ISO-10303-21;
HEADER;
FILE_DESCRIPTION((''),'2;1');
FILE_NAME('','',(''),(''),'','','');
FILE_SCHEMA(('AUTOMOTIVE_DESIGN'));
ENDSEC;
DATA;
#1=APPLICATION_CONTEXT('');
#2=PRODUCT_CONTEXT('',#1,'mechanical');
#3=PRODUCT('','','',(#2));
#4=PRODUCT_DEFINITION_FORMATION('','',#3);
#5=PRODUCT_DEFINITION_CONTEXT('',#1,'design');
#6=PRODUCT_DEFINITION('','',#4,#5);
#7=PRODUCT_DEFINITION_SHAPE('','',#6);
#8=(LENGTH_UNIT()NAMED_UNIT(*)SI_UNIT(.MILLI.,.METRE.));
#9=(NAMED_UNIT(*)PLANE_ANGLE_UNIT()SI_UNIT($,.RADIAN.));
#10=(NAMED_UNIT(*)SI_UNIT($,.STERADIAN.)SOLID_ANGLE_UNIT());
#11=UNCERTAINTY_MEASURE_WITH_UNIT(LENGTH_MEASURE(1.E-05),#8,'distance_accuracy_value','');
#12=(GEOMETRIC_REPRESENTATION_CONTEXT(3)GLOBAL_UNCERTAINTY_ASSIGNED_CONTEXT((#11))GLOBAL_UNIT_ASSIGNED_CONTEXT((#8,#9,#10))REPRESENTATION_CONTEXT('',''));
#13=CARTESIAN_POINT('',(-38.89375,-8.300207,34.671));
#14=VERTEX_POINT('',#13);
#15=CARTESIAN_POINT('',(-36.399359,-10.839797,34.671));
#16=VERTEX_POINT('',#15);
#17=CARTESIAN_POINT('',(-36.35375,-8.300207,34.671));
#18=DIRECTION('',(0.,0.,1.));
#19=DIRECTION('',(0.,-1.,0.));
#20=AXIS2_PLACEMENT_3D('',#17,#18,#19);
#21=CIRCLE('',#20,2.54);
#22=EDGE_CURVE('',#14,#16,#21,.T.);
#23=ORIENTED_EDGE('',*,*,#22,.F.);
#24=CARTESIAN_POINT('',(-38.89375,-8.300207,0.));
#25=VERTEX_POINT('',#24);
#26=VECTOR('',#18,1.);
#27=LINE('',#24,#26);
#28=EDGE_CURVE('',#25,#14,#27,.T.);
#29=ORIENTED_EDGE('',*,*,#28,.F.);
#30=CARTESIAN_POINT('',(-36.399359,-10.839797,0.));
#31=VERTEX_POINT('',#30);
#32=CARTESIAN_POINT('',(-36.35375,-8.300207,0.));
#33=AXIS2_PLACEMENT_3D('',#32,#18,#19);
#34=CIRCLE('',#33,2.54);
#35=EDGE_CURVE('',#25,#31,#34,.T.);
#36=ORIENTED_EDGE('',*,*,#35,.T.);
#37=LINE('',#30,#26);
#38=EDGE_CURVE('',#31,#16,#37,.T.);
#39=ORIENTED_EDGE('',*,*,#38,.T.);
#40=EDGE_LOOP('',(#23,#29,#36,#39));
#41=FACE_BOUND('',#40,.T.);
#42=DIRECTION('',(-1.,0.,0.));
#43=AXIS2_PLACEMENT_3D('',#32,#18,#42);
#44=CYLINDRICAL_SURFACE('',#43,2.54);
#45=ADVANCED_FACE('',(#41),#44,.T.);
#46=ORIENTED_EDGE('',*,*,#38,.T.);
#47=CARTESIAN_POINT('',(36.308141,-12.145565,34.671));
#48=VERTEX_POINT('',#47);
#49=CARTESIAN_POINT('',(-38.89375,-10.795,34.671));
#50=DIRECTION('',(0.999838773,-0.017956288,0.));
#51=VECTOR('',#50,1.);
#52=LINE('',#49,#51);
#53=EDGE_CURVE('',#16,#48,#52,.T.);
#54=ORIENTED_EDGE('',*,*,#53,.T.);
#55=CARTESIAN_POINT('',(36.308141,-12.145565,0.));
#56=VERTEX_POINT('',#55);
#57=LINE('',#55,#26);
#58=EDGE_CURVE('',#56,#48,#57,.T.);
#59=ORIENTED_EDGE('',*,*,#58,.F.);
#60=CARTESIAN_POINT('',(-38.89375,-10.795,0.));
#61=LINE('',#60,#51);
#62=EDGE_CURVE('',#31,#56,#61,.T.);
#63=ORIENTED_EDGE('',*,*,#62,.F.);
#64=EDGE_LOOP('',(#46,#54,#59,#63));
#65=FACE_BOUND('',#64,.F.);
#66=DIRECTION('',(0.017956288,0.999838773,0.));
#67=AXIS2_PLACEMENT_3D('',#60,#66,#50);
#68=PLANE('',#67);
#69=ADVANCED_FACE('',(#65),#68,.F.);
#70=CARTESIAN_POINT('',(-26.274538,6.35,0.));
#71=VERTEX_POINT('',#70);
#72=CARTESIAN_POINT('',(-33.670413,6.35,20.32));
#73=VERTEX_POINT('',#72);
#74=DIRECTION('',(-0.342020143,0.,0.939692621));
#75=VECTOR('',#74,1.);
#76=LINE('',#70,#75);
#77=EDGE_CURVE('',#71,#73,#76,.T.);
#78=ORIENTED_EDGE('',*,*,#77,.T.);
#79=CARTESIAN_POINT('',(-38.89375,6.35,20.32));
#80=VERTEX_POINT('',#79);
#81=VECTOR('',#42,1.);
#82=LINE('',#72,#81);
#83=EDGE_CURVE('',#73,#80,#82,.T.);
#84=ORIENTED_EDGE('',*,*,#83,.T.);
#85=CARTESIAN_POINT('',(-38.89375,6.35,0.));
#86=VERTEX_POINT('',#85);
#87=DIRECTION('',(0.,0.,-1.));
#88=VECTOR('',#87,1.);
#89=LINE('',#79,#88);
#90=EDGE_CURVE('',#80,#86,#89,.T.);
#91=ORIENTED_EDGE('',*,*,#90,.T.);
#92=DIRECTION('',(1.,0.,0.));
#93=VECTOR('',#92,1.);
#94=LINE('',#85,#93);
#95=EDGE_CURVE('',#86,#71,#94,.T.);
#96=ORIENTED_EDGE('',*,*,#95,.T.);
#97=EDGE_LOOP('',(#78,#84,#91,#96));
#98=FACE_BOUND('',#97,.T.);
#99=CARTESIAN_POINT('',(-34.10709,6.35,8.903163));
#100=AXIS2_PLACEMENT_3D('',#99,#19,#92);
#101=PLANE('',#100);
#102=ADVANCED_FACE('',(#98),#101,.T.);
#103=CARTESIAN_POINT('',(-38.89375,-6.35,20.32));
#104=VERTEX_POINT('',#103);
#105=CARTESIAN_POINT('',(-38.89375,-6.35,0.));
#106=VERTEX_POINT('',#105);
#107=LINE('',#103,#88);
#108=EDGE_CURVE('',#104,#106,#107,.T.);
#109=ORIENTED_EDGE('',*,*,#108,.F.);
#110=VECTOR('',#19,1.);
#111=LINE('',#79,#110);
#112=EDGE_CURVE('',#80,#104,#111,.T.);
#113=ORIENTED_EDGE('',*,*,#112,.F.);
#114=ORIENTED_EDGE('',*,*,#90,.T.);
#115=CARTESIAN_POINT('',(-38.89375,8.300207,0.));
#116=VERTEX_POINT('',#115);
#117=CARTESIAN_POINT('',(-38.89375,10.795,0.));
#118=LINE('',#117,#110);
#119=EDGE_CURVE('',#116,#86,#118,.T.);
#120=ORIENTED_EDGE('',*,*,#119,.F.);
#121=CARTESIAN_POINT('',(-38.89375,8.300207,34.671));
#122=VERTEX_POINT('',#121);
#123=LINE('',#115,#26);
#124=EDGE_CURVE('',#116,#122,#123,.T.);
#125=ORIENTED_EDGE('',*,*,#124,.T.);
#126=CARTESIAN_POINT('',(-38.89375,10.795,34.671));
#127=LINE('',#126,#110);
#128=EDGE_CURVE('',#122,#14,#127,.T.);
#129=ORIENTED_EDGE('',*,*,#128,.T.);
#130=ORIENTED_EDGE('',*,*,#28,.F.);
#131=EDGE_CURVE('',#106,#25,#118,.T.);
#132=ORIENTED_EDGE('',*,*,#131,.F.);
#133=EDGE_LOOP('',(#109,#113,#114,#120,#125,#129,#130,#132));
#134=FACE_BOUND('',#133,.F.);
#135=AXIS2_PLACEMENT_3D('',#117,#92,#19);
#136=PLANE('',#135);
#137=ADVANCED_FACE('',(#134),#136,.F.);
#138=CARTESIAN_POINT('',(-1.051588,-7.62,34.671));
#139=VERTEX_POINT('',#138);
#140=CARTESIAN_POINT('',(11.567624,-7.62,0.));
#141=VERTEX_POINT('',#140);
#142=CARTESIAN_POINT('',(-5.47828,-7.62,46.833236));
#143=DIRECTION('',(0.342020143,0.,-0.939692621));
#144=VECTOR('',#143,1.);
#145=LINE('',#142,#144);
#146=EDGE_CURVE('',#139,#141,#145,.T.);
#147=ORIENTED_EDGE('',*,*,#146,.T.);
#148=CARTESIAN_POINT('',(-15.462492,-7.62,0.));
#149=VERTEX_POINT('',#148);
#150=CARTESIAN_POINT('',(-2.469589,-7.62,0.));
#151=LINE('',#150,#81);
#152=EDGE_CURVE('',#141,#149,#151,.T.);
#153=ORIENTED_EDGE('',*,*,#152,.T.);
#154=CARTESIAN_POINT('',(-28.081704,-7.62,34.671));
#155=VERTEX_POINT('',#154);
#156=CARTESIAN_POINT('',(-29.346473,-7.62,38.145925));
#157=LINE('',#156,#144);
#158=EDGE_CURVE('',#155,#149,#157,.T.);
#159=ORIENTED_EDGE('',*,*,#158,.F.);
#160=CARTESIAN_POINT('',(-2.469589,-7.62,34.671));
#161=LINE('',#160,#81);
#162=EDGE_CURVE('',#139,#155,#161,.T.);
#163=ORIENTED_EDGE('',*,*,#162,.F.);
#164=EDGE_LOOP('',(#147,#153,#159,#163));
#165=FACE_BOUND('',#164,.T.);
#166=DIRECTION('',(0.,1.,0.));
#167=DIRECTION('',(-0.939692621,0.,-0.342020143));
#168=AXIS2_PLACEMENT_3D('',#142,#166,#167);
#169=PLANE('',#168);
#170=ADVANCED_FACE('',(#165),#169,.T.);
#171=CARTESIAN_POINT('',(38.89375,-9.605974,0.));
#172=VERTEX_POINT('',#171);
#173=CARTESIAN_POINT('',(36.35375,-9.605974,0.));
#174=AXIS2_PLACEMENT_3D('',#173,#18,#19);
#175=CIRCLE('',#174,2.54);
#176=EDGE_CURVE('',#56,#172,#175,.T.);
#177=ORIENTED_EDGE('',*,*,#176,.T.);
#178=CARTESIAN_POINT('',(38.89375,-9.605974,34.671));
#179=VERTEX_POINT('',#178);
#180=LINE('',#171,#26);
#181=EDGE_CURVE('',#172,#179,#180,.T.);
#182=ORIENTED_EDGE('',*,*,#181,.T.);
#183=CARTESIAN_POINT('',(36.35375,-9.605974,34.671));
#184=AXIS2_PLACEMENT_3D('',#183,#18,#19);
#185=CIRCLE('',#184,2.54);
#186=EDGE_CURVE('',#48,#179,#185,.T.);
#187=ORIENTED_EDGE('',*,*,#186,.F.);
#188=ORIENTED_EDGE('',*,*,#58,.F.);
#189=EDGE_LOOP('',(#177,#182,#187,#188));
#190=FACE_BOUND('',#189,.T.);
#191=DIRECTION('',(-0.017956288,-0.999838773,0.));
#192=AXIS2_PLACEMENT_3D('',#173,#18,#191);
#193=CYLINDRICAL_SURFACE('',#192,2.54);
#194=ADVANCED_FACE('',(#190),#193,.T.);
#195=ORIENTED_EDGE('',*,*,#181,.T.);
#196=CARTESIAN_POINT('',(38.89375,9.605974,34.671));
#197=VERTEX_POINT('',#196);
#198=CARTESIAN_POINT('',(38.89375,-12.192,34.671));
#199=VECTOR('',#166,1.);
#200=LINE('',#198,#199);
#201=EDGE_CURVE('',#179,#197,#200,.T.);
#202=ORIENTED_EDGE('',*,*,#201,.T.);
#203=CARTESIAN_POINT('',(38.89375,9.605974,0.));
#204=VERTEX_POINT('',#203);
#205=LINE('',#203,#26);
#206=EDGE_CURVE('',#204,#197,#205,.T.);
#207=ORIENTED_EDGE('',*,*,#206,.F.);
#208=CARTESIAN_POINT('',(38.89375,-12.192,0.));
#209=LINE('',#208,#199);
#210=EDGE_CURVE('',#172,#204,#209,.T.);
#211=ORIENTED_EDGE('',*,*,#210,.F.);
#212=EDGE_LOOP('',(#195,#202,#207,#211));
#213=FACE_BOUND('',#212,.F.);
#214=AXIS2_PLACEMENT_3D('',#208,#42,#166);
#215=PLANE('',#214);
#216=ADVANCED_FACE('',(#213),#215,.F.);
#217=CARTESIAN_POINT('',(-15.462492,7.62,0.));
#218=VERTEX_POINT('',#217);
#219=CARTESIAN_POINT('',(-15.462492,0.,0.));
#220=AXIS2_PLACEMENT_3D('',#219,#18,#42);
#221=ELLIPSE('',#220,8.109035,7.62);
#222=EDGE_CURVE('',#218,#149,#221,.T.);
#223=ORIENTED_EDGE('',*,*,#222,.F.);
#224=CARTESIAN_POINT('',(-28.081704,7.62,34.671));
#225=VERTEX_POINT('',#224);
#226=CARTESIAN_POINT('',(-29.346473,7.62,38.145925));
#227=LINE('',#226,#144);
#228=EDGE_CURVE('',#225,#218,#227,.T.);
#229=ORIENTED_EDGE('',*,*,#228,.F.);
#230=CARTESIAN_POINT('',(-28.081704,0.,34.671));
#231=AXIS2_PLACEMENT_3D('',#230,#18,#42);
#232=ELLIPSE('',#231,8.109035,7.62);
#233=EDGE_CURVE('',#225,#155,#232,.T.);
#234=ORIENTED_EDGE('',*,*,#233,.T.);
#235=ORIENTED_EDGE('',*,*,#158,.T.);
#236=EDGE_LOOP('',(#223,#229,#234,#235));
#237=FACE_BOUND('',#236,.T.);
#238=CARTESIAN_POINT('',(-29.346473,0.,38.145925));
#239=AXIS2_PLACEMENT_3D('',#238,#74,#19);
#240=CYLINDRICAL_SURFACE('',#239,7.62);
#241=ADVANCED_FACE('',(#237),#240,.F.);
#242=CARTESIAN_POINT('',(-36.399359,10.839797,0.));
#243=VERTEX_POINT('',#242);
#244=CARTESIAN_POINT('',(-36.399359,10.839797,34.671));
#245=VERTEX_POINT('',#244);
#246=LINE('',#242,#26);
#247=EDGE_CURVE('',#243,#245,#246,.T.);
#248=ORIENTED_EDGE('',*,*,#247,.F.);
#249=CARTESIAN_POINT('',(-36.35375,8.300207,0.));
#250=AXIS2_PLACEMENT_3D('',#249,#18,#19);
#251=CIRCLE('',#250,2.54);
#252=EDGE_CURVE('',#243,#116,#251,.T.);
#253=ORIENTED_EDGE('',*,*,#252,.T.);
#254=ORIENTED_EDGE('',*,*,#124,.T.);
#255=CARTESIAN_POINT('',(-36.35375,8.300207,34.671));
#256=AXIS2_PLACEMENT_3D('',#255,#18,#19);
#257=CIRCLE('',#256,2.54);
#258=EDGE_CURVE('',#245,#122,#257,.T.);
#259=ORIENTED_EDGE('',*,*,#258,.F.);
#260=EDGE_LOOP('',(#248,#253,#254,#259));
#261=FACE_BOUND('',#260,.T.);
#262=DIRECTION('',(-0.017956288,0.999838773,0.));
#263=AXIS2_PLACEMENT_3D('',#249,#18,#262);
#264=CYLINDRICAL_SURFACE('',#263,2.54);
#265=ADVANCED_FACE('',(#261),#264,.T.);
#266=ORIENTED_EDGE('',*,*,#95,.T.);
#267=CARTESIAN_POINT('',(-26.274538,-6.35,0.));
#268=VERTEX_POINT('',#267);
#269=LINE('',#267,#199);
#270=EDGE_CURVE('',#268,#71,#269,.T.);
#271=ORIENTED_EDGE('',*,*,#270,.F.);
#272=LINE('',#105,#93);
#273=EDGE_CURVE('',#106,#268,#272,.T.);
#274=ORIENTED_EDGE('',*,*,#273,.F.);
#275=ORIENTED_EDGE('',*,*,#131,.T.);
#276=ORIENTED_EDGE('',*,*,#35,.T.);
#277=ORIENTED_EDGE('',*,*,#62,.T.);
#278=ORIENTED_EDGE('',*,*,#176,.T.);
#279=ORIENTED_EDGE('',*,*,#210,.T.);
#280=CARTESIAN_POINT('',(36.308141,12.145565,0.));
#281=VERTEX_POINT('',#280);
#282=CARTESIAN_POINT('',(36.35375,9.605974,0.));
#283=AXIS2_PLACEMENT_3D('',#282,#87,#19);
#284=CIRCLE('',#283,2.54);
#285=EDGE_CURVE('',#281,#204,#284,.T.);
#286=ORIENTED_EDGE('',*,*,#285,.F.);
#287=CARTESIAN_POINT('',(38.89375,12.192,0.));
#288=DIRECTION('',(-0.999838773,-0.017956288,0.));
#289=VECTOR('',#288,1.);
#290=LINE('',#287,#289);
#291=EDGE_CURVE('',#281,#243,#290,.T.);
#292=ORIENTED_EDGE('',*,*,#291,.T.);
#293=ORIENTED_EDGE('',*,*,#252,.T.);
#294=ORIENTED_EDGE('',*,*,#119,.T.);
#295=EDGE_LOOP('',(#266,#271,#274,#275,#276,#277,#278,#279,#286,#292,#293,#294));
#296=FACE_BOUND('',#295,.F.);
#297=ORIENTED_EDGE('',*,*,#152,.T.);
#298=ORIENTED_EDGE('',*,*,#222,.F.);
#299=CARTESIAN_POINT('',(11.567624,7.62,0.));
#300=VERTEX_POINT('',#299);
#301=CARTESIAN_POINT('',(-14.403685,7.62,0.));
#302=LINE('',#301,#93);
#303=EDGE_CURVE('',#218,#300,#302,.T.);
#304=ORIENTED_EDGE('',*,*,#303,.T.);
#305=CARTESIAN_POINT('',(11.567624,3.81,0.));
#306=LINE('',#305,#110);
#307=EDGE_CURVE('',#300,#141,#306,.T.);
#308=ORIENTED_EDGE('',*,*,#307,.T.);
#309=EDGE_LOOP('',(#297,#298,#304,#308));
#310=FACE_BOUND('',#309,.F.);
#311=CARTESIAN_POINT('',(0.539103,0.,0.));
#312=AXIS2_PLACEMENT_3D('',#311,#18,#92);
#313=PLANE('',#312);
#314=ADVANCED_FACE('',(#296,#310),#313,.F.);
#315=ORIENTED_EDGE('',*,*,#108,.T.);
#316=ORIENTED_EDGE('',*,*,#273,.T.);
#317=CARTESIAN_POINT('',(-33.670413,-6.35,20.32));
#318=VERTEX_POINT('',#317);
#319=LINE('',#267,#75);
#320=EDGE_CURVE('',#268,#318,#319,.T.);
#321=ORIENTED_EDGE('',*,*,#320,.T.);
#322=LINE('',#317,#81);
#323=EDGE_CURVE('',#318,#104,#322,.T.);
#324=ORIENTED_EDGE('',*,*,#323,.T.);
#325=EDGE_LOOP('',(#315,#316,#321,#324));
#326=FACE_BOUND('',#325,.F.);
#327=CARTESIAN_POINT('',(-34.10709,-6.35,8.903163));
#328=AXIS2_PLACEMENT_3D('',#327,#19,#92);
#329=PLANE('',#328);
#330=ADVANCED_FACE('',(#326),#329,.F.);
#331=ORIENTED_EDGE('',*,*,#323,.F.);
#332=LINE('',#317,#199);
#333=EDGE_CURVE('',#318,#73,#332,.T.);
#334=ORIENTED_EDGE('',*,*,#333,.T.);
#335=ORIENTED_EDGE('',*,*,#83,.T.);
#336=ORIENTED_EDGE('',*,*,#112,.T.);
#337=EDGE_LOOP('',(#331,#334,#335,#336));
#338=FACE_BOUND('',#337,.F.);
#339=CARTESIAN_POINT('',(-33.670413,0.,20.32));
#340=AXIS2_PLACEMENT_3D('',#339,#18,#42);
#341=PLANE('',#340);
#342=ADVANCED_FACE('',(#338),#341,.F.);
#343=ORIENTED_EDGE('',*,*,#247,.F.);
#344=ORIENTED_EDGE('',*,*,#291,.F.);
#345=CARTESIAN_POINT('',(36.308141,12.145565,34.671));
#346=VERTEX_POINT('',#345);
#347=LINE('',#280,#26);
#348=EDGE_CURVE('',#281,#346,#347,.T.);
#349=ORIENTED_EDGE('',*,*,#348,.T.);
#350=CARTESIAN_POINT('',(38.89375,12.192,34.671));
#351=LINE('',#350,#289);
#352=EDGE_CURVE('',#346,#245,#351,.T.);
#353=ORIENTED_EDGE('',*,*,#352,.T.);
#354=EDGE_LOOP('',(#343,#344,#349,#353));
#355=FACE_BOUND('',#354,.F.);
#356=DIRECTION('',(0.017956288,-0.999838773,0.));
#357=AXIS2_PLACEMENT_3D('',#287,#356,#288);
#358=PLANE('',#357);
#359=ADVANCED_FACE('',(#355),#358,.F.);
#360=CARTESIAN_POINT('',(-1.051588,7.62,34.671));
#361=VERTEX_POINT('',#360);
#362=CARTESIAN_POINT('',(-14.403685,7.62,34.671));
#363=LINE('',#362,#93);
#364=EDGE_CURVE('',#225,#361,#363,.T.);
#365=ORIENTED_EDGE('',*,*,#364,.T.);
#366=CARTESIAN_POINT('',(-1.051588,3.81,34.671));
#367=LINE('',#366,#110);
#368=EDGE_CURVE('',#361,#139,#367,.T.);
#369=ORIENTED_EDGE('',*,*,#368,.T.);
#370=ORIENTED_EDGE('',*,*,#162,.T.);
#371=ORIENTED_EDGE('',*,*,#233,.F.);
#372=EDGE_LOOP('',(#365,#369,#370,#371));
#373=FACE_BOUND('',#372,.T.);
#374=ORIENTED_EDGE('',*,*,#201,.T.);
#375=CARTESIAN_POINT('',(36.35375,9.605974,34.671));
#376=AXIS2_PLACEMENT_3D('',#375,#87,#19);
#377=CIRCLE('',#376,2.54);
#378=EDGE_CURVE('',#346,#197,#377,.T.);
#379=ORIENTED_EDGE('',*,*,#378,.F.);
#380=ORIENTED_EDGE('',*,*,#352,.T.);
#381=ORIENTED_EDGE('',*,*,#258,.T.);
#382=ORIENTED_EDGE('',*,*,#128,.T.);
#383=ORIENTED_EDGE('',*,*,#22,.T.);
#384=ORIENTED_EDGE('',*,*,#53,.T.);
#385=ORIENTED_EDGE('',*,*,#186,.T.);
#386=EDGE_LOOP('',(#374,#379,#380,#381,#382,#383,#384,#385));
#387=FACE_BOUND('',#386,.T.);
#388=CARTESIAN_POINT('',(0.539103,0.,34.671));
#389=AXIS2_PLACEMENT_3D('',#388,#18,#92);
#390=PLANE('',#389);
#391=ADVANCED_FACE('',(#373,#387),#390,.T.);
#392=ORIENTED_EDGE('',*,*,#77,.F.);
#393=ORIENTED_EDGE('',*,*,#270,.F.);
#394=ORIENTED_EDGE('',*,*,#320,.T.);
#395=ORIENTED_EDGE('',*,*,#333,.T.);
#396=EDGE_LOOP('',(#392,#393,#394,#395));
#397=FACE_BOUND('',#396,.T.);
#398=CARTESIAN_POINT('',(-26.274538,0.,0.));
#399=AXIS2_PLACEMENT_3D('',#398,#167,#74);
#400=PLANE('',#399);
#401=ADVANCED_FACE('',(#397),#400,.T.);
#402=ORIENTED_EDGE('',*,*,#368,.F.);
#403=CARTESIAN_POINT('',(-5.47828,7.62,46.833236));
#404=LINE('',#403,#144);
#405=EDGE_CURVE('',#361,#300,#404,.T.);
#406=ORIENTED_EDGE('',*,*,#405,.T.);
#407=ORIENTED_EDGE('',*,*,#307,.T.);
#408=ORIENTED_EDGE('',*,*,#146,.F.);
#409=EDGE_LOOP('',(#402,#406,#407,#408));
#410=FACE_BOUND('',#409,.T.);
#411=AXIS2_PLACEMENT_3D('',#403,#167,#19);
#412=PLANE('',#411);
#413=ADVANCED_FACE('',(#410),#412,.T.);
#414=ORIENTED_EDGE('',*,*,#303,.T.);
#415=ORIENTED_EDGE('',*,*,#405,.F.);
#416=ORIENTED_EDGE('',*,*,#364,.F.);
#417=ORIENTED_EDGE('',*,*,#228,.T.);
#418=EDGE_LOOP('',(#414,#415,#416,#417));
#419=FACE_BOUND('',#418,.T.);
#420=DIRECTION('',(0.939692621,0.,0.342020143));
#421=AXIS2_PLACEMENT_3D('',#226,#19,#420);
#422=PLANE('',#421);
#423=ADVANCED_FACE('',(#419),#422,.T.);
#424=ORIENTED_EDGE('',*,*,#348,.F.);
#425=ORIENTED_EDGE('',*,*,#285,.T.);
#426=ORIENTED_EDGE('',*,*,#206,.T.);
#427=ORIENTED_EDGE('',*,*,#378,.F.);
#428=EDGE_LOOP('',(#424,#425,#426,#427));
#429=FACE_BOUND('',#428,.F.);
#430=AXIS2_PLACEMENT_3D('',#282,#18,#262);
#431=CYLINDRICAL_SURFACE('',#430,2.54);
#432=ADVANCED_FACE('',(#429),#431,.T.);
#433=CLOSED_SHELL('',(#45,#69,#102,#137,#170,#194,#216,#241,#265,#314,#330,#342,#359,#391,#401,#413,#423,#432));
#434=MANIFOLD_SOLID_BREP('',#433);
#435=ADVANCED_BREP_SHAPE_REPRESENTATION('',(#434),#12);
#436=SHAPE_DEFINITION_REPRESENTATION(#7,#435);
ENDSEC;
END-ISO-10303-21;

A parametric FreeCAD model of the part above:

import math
import FreeCAD as App
import Part
import Sketcher

V = App.Vector
Q = App.Units.Quantity


def edges_at(feature, points):
    """Names of the edges that pass closest to the given points."""
    edges = feature.Shape.Edges
    near = lambda p: min(range(len(edges)), key=lambda i: edges[i].distToShape(Part.Vertex(*p))[0])
    return sorted({f"Edge{near(p) + 1}" for p in points})

doc = App.newDocument("Part")
params = doc.addObject("Spreadsheet::Sheet", "Params")
for row, (alias, value) in enumerate([
    ("sketch1_height", "0.85 in"),
    ("sketch1_height2", "0.96 in"),
    ("pad1_length", "1.365 in"),
    ("fillet_radius", "0.1 in"),
    ("sketch2_radius", "0.3 in"),
    ("sketch2_width", "1 in"),
    ("sketch3_height", "0.8 in"),
    ("pocket2_length", "0.25 in"),
    ("pocket2_length2", "0.25 in"),
], start=1):
    params.set(f"A{row}", alias)
    params.set(f"B{row}", "=" + value)
    params.setAlias(f"B{row}", alias)

body = doc.addObject("PartDesign::Body", "Body")

# Sketch on XY plane
sketch1 = body.newObject("Sketcher::SketchObject", "Sketch")
sketch1.AttachmentSupport = (doc.getObject("XY_Plane"), [""])
sketch1.MapMode = "FlatFace"
sketch1.addGeometry([
    Part.LineSegment(V(39, 12, 0), V(-39, 11, 0)),
    Part.LineSegment(V(-39, 11, 0), V(-39, -11, 0)),
    Part.LineSegment(V(-39, -11, 0), V(39, -12, 0)),
    Part.LineSegment(V(39, -12, 0), V(39, 12, 0)),
], False)
sketch1.addConstraint([
    Sketcher.Constraint("Coincident", 0, 2, 1, 1),
    Sketcher.Constraint("Coincident", 1, 2, 2, 1),
    Sketcher.Constraint("Coincident", 2, 2, 3, 1),
    Sketcher.Constraint("Coincident", 3, 2, 0, 1),
    Sketcher.Constraint("Vertical", 1),
    Sketcher.Constraint("Vertical", 3),
    Sketcher.Constraint("Equal", 0, 2),
    Sketcher.Constraint("DistanceY", 1, 2, 1, 1, Q("0.85 in")),
    Sketcher.Constraint("DistanceY", 3, 1, 3, 2, Q("0.96 in")),
    Sketcher.Constraint("DistanceY", 2, 2, -1, 1, Q("0.48 in")),
    Sketcher.Constraint("DistanceX", 0, 2, -1, 1, Q("1.53125 in")),
    Sketcher.Constraint("DistanceX", -1, 1, 2, 2, Q("1.53125 in")),
])
sketch1.setExpression("Constraints[7]", "Params.sketch1_height")
sketch1.setExpression("Constraints[8]", "Params.sketch1_height2")
pad1 = body.newObject("PartDesign::Pad", "Pad")
pad1.Profile = sketch1
pad1.setExpression("Length", "Params.pad1_length")
doc.recompute()

fillet = body.newObject("PartDesign::Fillet", "Fillet")
fillet.Base = (pad1, edges_at(pad1, [
    (-38.894, -10.795, 17.335),
    (-38.894, 10.795, 17.335),
    (38.894, -12.192, 17.335),
    (38.894, 12.192, 17.335),
]))
fillet.setExpression("Radius", "Params.fillet_radius")

# Sketch on an angled plane
sketch2 = body.newObject("Sketcher::SketchObject", "Sketch001")
sketch2.Placement = App.Placement(V(-15.692749, 0, 43.115474), App.Rotation(V(0.939692621, 0, 0.342020143), V(0, -1, 0), V(0.342020143, 0, -0.939692621), "ZXY"))
sketch2.addGeometry([
    Part.LineSegment(V(11, 8, 0), V(-15, 8, 0)),
    Part.ArcOfCircle(Part.Circle(V(-15, 0, 0), V(0, 0, 1), 8), math.radians(90), math.radians(270)),
    Part.LineSegment(V(-15, -8, 0), V(11, -8, 0)),
    Part.LineSegment(V(11, -8, 0), V(11, 8, 0)),
], False)
sketch2.addConstraint([
    Sketcher.Constraint("Tangent", 0, 2, 1, 1),
    Sketcher.Constraint("Tangent", 1, 2, 2, 1),
    Sketcher.Constraint("Coincident", 2, 2, 3, 1),
    Sketcher.Constraint("Coincident", 3, 2, 0, 1),
    Sketcher.Constraint("Horizontal", 0),
    Sketcher.Constraint("Horizontal", 2),
    Sketcher.Constraint("Vertical", 3),
    Sketcher.Constraint("PointOnObject", 1, 3, -1),
    Sketcher.Constraint("Radius", 1, Q("0.3 in")),
    Sketcher.Constraint("DistanceX", 0, 2, 0, 1, Q("1 in")),
    Sketcher.Constraint("DistanceX", 1, 3, -1, 1, Q("14.529989 mm")),
])
sketch2.setExpression("Constraints[8]", "Params.sketch2_radius")
sketch2.setExpression("Constraints[9]", "Params.sketch2_width")
pocket1 = body.newObject("PartDesign::Pocket", "Pocket")
pocket1.Profile = sketch2
pocket1.Type = "ThroughAll"
pocket1.Reversed = True

# Sketch on XZ plane
sketch3 = body.newObject("Sketcher::SketchObject", "Sketch002")
sketch3.AttachmentSupport = (doc.getObject("XZ_Plane"), [""])
sketch3.MapMode = "FlatFace"
sketch3.addGeometry([
    Part.LineSegment(V(-26, 0, 0), V(-34, 20, 0)),
    Part.LineSegment(V(-34, 20, 0), V(-39, 20, 0)),
    Part.LineSegment(V(-39, 20, 0), V(-39, 0, 0)),
    Part.LineSegment(V(-39, 0, 0), V(-26, 0, 0)),
], False)
sketch3.addConstraint([
    Sketcher.Constraint("Coincident", 0, 2, 1, 1),
    Sketcher.Constraint("Coincident", 1, 2, 2, 1),
    Sketcher.Constraint("Coincident", 2, 2, 3, 1),
    Sketcher.Constraint("Coincident", 3, 2, 0, 1),
    Sketcher.Constraint("Horizontal", 1),
    Sketcher.Constraint("Vertical", 2),
    Sketcher.Constraint("Horizontal", 3),
    Sketcher.Constraint("PointOnObject", 2, 2, -1),
    Sketcher.Constraint("DistanceY", 2, 2, 2, 1, Q("0.8 in")),
    Sketcher.Constraint("Angle", 0, Q("110 deg")),
    Sketcher.Constraint("DistanceX", 1, 2, -1, 1, Q("1.53125 in")),
    Sketcher.Constraint("DistanceX", 3, 1, 3, 2, Q("12.619212 mm")),
])
sketch3.setExpression("Constraints[8]", "Params.sketch3_height")
pocket2 = body.newObject("PartDesign::Pocket", "Pocket001")
pocket2.Profile = sketch3
pocket2.Type = "TwoLengths"
pocket2.setExpression("Length", "Params.pocket2_length")
pocket2.setExpression("Length2", "Params.pocket2_length2")

doc.recompute()
